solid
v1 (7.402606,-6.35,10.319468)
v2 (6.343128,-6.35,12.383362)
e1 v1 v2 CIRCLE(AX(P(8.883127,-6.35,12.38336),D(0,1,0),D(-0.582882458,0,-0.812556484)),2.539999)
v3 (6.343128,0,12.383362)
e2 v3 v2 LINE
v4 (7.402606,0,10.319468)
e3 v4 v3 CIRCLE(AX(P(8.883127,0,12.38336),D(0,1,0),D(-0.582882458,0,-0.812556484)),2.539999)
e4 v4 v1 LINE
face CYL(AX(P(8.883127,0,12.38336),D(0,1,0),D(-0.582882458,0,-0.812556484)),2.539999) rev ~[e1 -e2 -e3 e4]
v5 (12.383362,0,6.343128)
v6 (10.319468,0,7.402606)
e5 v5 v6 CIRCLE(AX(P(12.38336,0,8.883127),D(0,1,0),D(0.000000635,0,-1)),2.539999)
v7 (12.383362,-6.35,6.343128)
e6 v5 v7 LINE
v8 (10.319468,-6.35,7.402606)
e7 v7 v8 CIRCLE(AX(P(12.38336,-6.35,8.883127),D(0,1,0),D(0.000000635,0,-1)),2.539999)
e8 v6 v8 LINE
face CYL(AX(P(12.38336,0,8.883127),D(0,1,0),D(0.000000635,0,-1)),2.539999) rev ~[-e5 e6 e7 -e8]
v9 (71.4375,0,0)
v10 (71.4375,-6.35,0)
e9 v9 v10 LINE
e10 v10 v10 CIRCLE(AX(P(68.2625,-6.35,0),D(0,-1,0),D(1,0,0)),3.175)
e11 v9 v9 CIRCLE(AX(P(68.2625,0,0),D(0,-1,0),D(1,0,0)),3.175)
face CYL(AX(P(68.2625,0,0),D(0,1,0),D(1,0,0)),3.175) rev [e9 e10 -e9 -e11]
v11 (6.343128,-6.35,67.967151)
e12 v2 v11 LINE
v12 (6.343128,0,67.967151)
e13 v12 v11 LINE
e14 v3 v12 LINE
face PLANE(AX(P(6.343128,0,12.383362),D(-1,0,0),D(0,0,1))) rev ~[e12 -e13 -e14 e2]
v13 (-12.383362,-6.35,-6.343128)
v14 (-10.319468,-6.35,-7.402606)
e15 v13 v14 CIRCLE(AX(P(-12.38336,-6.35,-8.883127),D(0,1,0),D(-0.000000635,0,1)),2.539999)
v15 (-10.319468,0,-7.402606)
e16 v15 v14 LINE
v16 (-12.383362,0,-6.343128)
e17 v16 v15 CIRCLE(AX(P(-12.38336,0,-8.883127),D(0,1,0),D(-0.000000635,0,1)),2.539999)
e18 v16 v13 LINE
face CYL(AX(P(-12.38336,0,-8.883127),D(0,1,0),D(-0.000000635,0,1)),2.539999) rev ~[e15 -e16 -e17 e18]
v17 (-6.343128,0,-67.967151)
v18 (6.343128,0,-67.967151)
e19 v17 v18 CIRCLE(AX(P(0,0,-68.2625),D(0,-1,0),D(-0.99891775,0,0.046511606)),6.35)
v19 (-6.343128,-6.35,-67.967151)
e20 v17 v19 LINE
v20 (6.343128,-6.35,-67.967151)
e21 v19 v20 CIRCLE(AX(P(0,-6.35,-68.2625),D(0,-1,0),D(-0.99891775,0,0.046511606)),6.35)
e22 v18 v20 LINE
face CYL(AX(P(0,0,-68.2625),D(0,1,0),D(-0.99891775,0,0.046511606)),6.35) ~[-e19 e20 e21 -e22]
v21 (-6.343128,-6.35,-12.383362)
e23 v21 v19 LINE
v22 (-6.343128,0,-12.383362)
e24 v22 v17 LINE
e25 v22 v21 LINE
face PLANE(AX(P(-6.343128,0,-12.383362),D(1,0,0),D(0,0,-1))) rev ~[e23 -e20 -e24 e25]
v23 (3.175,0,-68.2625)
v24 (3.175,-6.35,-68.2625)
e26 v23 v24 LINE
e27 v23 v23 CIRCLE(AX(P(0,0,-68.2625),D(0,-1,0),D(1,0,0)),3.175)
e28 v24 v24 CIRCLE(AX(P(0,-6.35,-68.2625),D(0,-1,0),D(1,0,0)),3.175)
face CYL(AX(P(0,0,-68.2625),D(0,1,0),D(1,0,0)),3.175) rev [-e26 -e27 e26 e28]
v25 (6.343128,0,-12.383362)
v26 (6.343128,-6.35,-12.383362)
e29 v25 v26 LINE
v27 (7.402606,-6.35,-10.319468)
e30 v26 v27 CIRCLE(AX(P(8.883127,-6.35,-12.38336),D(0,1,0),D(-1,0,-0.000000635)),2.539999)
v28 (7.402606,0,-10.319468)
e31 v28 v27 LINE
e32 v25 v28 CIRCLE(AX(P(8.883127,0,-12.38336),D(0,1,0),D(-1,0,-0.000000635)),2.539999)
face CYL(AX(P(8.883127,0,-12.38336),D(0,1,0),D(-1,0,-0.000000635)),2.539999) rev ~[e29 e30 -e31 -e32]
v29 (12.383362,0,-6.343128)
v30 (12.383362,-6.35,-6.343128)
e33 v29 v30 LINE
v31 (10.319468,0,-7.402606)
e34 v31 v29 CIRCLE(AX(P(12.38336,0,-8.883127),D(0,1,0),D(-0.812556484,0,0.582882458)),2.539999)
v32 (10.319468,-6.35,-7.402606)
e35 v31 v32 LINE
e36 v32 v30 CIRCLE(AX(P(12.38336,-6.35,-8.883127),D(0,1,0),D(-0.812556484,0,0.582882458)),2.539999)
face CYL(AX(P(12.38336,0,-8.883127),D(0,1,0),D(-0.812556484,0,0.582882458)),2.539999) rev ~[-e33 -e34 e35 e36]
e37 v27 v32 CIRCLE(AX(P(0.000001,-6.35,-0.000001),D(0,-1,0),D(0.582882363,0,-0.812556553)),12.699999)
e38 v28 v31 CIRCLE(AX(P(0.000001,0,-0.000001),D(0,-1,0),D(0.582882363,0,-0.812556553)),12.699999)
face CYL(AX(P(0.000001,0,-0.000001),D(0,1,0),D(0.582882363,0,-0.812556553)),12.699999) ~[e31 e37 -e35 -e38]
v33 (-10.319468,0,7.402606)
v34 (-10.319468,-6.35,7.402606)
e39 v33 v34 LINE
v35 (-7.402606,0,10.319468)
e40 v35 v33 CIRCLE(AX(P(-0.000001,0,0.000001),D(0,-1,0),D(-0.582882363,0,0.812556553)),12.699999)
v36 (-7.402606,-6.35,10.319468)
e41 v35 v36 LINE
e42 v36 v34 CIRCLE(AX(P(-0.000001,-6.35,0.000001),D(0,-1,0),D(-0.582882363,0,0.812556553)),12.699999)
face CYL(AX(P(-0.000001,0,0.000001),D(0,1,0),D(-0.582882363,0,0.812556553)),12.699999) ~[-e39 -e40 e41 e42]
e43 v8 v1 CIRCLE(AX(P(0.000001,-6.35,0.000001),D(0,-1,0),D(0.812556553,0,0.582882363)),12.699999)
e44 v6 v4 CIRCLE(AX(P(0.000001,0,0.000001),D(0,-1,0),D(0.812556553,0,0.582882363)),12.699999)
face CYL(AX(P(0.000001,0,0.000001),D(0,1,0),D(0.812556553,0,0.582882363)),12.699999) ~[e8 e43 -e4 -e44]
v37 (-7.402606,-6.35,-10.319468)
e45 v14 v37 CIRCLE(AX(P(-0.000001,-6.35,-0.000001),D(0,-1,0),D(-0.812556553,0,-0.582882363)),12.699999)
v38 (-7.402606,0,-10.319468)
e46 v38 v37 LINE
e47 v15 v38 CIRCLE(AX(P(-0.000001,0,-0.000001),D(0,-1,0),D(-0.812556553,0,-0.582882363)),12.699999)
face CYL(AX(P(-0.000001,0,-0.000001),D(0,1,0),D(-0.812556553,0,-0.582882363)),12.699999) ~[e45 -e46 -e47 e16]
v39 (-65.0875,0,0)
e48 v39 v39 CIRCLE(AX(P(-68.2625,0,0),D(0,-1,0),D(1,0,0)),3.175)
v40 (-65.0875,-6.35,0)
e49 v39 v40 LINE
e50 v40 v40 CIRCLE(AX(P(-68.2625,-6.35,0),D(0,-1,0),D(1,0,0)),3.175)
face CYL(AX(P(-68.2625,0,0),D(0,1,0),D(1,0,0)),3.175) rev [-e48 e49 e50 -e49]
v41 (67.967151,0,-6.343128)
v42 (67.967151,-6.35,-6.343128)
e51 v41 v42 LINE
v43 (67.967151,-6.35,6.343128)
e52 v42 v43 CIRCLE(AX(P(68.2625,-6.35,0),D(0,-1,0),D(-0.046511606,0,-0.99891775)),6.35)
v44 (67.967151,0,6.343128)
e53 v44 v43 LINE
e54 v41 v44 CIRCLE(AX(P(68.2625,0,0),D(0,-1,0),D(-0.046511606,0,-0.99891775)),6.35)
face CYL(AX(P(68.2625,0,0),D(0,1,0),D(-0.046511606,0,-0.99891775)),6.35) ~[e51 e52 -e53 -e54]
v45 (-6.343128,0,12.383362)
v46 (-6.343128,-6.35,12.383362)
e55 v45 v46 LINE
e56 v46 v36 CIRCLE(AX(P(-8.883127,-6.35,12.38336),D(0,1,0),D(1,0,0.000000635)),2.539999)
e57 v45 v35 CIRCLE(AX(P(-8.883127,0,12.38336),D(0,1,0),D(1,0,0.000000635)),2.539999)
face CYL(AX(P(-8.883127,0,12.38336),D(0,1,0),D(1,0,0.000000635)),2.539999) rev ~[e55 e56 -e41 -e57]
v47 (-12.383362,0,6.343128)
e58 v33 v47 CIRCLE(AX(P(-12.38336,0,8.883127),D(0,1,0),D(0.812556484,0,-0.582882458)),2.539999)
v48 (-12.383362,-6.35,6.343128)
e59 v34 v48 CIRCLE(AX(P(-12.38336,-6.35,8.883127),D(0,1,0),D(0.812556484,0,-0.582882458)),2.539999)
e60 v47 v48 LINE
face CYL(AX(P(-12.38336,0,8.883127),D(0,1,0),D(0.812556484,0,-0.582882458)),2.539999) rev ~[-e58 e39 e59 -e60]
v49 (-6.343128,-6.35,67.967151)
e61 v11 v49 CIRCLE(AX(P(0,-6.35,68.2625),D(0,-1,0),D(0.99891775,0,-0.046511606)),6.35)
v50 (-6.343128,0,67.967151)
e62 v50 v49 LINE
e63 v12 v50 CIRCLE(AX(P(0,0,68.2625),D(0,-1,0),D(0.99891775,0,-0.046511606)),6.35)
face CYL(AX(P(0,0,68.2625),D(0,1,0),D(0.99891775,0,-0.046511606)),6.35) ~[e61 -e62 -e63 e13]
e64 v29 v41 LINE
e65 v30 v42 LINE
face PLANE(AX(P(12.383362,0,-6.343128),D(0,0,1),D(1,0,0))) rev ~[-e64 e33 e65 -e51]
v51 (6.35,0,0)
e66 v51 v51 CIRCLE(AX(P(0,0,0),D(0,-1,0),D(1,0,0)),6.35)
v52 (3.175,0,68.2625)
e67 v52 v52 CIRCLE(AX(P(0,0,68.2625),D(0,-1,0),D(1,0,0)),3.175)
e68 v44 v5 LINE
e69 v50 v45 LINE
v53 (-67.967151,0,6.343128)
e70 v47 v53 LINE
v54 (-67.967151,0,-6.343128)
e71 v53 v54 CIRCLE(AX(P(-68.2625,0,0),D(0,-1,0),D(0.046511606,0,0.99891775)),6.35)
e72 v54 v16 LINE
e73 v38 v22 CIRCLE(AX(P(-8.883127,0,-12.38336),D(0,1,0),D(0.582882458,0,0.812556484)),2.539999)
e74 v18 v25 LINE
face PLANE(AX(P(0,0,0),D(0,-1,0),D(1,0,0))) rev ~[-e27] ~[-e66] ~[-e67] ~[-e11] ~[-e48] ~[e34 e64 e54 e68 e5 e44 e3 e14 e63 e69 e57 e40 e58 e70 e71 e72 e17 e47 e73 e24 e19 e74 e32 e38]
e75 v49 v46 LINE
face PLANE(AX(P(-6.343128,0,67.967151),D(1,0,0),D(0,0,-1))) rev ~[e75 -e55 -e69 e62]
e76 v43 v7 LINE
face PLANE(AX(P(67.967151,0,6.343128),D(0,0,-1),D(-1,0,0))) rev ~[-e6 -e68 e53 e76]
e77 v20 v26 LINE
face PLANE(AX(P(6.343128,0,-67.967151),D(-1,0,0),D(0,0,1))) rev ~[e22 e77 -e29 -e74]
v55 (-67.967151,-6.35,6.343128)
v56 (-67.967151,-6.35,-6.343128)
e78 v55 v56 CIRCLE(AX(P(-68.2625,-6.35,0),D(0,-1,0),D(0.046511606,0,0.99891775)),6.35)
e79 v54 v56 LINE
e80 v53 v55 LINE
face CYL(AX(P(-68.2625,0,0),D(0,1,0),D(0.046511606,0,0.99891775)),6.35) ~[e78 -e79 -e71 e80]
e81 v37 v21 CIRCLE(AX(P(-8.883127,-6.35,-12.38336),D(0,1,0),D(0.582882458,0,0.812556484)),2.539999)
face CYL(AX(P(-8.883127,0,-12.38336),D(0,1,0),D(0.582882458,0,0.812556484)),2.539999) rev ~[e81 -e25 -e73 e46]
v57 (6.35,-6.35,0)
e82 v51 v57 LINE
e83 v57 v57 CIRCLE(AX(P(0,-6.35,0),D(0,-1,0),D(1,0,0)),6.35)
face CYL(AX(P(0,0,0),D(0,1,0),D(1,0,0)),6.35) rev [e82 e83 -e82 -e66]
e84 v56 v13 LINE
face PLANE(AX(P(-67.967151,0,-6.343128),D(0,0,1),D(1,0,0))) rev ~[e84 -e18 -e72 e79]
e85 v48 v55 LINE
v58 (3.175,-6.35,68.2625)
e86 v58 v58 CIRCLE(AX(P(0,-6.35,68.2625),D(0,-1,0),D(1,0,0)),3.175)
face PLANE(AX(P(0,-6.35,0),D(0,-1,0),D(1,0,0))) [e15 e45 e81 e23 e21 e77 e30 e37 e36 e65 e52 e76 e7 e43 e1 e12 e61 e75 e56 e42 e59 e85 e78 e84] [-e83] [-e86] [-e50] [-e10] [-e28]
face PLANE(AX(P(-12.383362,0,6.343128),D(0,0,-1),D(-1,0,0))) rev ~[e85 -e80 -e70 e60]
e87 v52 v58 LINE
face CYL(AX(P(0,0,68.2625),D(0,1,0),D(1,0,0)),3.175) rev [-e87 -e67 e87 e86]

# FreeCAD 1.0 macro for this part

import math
import FreeCAD as App
import Part
import Sketcher

V = App.Vector
Q = App.Units.Quantity

doc = App.newDocument("Part")
params = doc.addObject("Spreadsheet::Sheet", "Params")
for row, (alias, value) in enumerate([
    ("sketch1_diameter", "0.5 in"),
    ("sketch1_radius", "0.0999999 in"),
    ("sketch1_radius2", "0.5 in"),
    ("sketch1_diameter2", "0.25 in"),
    ("pad1_length", "0.25 in"),
], start=1):
    params.set(f"A{row}", alias)
    params.set(f"B{row}", "=" + value)
    params.setAlias(f"B{row}", alias)

body = doc.addObject("PartDesign::Body", "Body")

# Sketch on XZ plane
sketch1 = body.newObject("Sketcher::SketchObject", "Sketch")
sketch1.AttachmentSupport = (doc.getObject("XZ_Plane"), [""])
sketch1.MapMode = "FlatFace"
sketch1.addGeometry([
    Part.LineSegment(V(6.3, 12.4, 0), V(6.3, 68, 0)),  # 0
    Part.ArcOfCircle(Part.Circle(V(0, 68.3, 0), V(0, 0, 1), 6.4), math.radians(-3), math.radians(183)),  # 1
    Part.LineSegment(V(-6.3, 68, 0), V(-6.3, 12.4, 0)),  # 2
    Part.ArcOfCircle(Part.Circle(V(-8.9, 12.4, 0), V(0, 0, 1), 2.5), math.radians(-54), math.radians(0)),  # 3
    Part.ArcOfCircle(Part.Circle(V(0, 0, 0), V(0, 0, 1), 12.7), math.radians(125.65), math.radians(144.35)),  # 4
    Part.ArcOfCircle(Part.Circle(V(-12.4, 8.9, 0), V(0, 0, 1), 2.5), math.radians(-90), math.radians(-36)),  # 5
    Part.LineSegment(V(-12.4, 6.3, 0), V(-68, 6.3, 0)),  # 6
    Part.ArcOfCircle(Part.Circle(V(-68.3, 0, 0), V(0, 0, 1), 6.4), math.radians(87), math.radians(273)),  # 7
    Part.LineSegment(V(-68, -6.3, 0), V(-12.4, -6.3, 0)),  # 8
    Part.ArcOfCircle(Part.Circle(V(-12.4, -8.9, 0), V(0, 0, 1), 2.5), math.radians(36), math.radians(90)),  # 9
    Part.ArcOfCircle(Part.Circle(V(0, 0, 0), V(0, 0, 1), 12.7), math.radians(-144.35), math.radians(-125.65)),  # 10
    Part.ArcOfCircle(Part.Circle(V(-8.9, -12.4, 0), V(0, 0, 1), 2.5), math.radians(0), math.radians(54)),  # 11
    Part.LineSegment(V(-6.3, -12.4, 0), V(-6.3, -68, 0)),  # 12
    Part.ArcOfCircle(Part.Circle(V(0, -68.3, 0), V(0, 0, 1), 6.4), math.radians(177), math.radians(363)),  # 13
    Part.LineSegment(V(6.3, -68, 0), V(6.3, -12.4, 0)),  # 14
    Part.ArcOfCircle(Part.Circle(V(8.9, -12.4, 0), V(0, 0, 1), 2.5), math.radians(126), math.radians(180)),  # 15
    Part.ArcOfCircle(Part.Circle(V(0, 0, 0), V(0, 0, 1), 12.7), math.radians(-54.35), math.radians(-35.65)),  # 16
    Part.ArcOfCircle(Part.Circle(V(12.4, -8.9, 0), V(0, 0, 1), 2.5), math.radians(90), math.radians(144)),  # 17
    Part.LineSegment(V(12.4, -6.3, 0), V(68, -6.3, 0)),  # 18
    Part.ArcOfCircle(Part.Circle(V(68.3, 0, 0), V(0, 0, 1), 6.4), math.radians(-93), math.radians(93)),  # 19
    Part.LineSegment(V(68, 6.3, 0), V(12.4, 6.3, 0)),  # 20
    Part.ArcOfCircle(Part.Circle(V(12.4, 8.9, 0), V(0, 0, 1), 2.5), math.radians(-144), math.radians(-90)),  # 21
    Part.ArcOfCircle(Part.Circle(V(0, 0, 0), V(0, 0, 1), 12.7), math.radians(35.65), math.radians(54.35)),  # 22
    Part.ArcOfCircle(Part.Circle(V(8.9, 12.4, 0), V(0, 0, 1), 2.5), math.radians(180), math.radians(234)),  # 23
    Part.Circle(V(0, -68.3, 0), V(0, 0, 1), 3.2),  # 24
    Part.Circle(V(-68.3, 0, 0), V(0, 0, 1), 3.2),  # 25
    Part.Circle(V(0, 0, 0), V(0, 0, 1), 6.3),  # 26
    Part.Circle(V(68.3, 0, 0), V(0, 0, 1), 3.2),  # 27
    Part.Circle(V(0, 68.3, 0), V(0, 0, 1), 3.2),  # 28
], False)
sketch1.addConstraint([
    Sketcher.Constraint("Coincident", 0, 2, 1, 1),
    Sketcher.Constraint("Coincident", 1, 2, 2, 1),
    Sketcher.Constraint("Tangent", 2, 2, 3, 2),
    Sketcher.Constraint("Tangent", 3, 1, 4, 1),
    Sketcher.Constraint("Tangent", 4, 2, 5, 2),
    Sketcher.Constraint("Tangent", 5, 1, 6, 1),
    Sketcher.Constraint("Coincident", 6, 2, 7, 1),
    Sketcher.Constraint("Coincident", 7, 2, 8, 1),
    Sketcher.Constraint("Tangent", 8, 2, 9, 2),
    Sketcher.Constraint("Tangent", 9, 1, 10, 1),
    Sketcher.Constraint("Tangent", 10, 2, 11, 2),
    Sketcher.Constraint("Tangent", 11, 1, 12, 1),
    Sketcher.Constraint("Coincident", 12, 2, 13, 1),
    Sketcher.Constraint("Coincident", 13, 2, 14, 1),
    Sketcher.Constraint("Tangent", 14, 2, 15, 2),
    Sketcher.Constraint("Tangent", 15, 1, 16, 1),
    Sketcher.Constraint("Tangent", 16, 2, 17, 2),
    Sketcher.Constraint("Tangent", 17, 1, 18, 1),
    Sketcher.Constraint("Coincident", 18, 2, 19, 1),
    Sketcher.Constraint("Coincident", 19, 2, 20, 1),
    Sketcher.Constraint("Tangent", 20, 2, 21, 2),
    Sketcher.Constraint("Tangent", 21, 1, 22, 1),
    Sketcher.Constraint("Tangent", 22, 2, 23, 2),
    Sketcher.Constraint("Tangent", 23, 1, 0, 1),
    Sketcher.Constraint("Vertical", 0),
    Sketcher.Constraint("Vertical", 2),
    Sketcher.Constraint("Horizontal", 6),
    Sketcher.Constraint("Horizontal", 8),
    Sketcher.Constraint("Vertical", 12),
    Sketcher.Constraint("Vertical", 14),
    Sketcher.Constraint("Horizontal", 18),
    Sketcher.Constraint("Horizontal", 20),
    Sketcher.Constraint("Coincident", 4, 3, -1, 1),
    Sketcher.Constraint("Coincident", 10, 3, -1, 1),
    Sketcher.Constraint("Coincident", 16, 3, -1, 1),
    Sketcher.Constraint("Coincident", 22, 3, -1, 1),
    Sketcher.Constraint("Coincident", 26, 3, -1, 1),
    Sketcher.Constraint("Coincident", 24, 3, 13, 3),
    Sketcher.Constraint("Coincident", 25, 3, 7, 3),
    Sketcher.Constraint("Coincident", 27, 3, 19, 3),
    Sketcher.Constraint("Coincident", 28, 3, 1, 3),
    Sketcher.Constraint("Equal", 3, 5),
    Sketcher.Constraint("Equal", 1, 7),
    Sketcher.Constraint("Equal", 5, 9),
    Sketcher.Constraint("Equal", 4, 10),
    Sketcher.Constraint("Equal", 9, 11),
    Sketcher.Constraint("Equal", 7, 13),
    Sketcher.Constraint("Equal", 11, 15),
    Sketcher.Constraint("Equal", 10, 16),
    Sketcher.Constraint("Equal", 15, 17),
    Sketcher.Constraint("Equal", 13, 19),
    Sketcher.Constraint("Equal", 17, 21),
    Sketcher.Constraint("Equal", 16, 22),
    Sketcher.Constraint("Equal", 21, 23),
    Sketcher.Constraint("Equal", 24, 25),
    Sketcher.Constraint("Equal", 19, 26),
    Sketcher.Constraint("Equal", 25, 27),
    Sketcher.Constraint("Equal", 27, 28),
    Sketcher.Constraint("Symmetric", 1, 3, 13, 3, -1, 1),
    Sketcher.Constraint("Symmetric", 7, 3, 19, 3, -1, 1),
    Sketcher.Constraint("Symmetric", 0, 2, 1, 2, -2),
    Sketcher.Constraint("Symmetric", 7, 2, 18, 2, -2),
    Sketcher.Constraint("Horizontal", 11, 3, 15, 3),
    Sketcher.Constraint("Horizontal", 5, 3, 21, 3),
    Sketcher.Constraint("Vertical", 5, 3, 9, 3),
    Sketcher.Constraint("Vertical", 3, 3, 11, 3),
    Sketcher.Constraint("Equal", 20, 0),
    Sketcher.Constraint("Diameter", 26, Q("0.5 in")),
    Sketcher.Constraint("Radius", 3, Q("0.0999999 in")),
    Sketcher.Constraint("Radius", 4, Q("0.5 in")),
    Sketcher.Constraint("Diameter", 24, Q("0.25 in")),
    Sketcher.Constraint("DistanceY", -1, 1, 1, 3, Q("2.6875 in")),
    Sketcher.Constraint("DistanceX", 7, 3, -1, 1, Q("2.6875 in")),
    Sketcher.Constraint("DistanceX", 6, 2, 6, 1, 55.583789),
])
sketch1.setExpression("Constraints[67]", "Params.sketch1_diameter")
sketch1.setExpression("Constraints[68]", "Params.sketch1_radius")
sketch1.setExpression("Constraints[69]", "Params.sketch1_radius2")
sketch1.setExpression("Constraints[70]", "Params.sketch1_diameter2")
pad1 = body.newObject("PartDesign::Pad", "Pad")
pad1.Profile = sketch1
pad1.setExpression("Length", "Params.pad1_length")

doc.recompute()
